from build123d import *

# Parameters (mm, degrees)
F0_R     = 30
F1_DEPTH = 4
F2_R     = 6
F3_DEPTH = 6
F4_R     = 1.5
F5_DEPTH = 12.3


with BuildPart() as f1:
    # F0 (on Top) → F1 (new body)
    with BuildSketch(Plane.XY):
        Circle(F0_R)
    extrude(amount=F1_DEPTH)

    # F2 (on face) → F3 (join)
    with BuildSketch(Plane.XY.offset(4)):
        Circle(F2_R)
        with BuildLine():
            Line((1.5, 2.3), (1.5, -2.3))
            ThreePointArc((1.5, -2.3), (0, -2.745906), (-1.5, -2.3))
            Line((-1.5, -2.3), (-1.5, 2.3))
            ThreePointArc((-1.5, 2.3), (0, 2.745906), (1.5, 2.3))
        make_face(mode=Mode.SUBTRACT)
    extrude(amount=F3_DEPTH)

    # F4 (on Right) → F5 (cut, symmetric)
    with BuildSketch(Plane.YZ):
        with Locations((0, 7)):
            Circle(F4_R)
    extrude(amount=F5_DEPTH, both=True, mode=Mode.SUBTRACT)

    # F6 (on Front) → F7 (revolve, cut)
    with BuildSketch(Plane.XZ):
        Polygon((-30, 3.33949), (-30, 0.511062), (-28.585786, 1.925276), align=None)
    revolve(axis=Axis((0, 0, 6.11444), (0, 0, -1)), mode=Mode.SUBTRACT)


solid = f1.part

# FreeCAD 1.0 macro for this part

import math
import FreeCAD as App
import Part
import Sketcher

V = App.Vector
Q = App.Units.Quantity

doc = App.newDocument("Part")
body = doc.addObject("PartDesign::Body", "Body")

# Sketch on XY plane
sketch1 = doc.addObject("Sketcher::SketchObject", "Sketch")
body.addObject(sketch1)
sketch1.AttachmentSupport = (doc.XY_Plane, [""])
sketch1.MapMode = "FlatFace"
sketch1.addGeometry(Part.Circle(V(0, 0, 0), V(0, 0, 1), 30), False)
sketch1.addConstraint(Sketcher.Constraint("Coincident", 0, 3, -1, 1))
sketch1.addConstraint(Sketcher.Constraint("Diameter", 0, Q("60 mm")))
pad1 = doc.addObject("PartDesign::Pad", "Pad")
body.addObject(pad1)
pad1.Profile = sketch1
pad1.Length = 4

# Sketch on XY plane
sketch2 = doc.addObject("Sketcher::SketchObject", "Sketch001")
body.addObject(sketch2)
sketch2.AttachmentSupport = (doc.XY_Plane, [""])
sketch2.MapMode = "FlatFace"
sketch2.AttachmentOffset = App.Placement(V(0, 0, 4), App.Rotation())
sketch2.addGeometry(Part.Circle(V(0, 0, 0), V(0, 0, 1), 6), False)
sketch2.addGeometry(Part.ArcOfCircle(Part.Circle(V(0, 0, 0), V(0, 0, 1), 2.7), math.radians(57), math.radians(123)), False)
sketch2.addGeometry(Part.LineSegment(V(1.5, 2.3, 0), V(1.5, -2.3, 0)), False)
sketch2.addGeometry(Part.ArcOfCircle(Part.Circle(V(0, 0, 0), V(0, 0, 1), 2.7), math.radians(-123), math.radians(-57)), False)
sketch2.addGeometry(Part.LineSegment(V(-1.5, -2.3, 0), V(-1.5, 2.3, 0)), False)
sketch2.addConstraint(Sketcher.Constraint("Coincident", 1, 1, 2, 1))
sketch2.addConstraint(Sketcher.Constraint("Coincident", 2, 2, 3, 2))
sketch2.addConstraint(Sketcher.Constraint("Coincident", 3, 1, 4, 1))
sketch2.addConstraint(Sketcher.Constraint("Coincident", 4, 2, 1, 2))
sketch2.addConstraint(Sketcher.Constraint("Vertical", 2))
sketch2.addConstraint(Sketcher.Constraint("Vertical", 4))
sketch2.addConstraint(Sketcher.Constraint("Coincident", 0, 3, -1, 1))
sketch2.addConstraint(Sketcher.Constraint("Coincident", 1, 3, -1, 1))
sketch2.addConstraint(Sketcher.Constraint("Coincident", 3, 3, -1, 1))
sketch2.addConstraint(Sketcher.Constraint("Equal", 1, 3))
sketch2.addConstraint(Sketcher.Constraint("Horizontal", 2, 2, 3, 1))
sketch2.addConstraint(Sketcher.Constraint("Diameter", 0, Q("12 mm")))
sketch2.addConstraint(Sketcher.Constraint("DistanceY", 2, 2, 2, 1, Q("4.6 mm")))
sketch2.addConstraint(Sketcher.Constraint("DistanceX", 3, 1, 2, 2, Q("3 mm")))
pad2 = doc.addObject("PartDesign::Pad", "Pad001")
body.addObject(pad2)
pad2.Profile = sketch2
pad2.Length = 6

# Sketch on YZ plane
sketch3 = doc.addObject("Sketcher::SketchObject", "Sketch002")
body.addObject(sketch3)
sketch3.AttachmentSupport = (doc.YZ_Plane, [""])
sketch3.MapMode = "FlatFace"
sketch3.addGeometry(Part.Circle(V(0, 7, 0), V(0, 0, 1), 1.5), False)
sketch3.addConstraint(Sketcher.Constraint("PointOnObject", 0, 3, -2))
sketch3.addConstraint(Sketcher.Constraint("Diameter", 0, Q("3 mm")))
sketch3.addConstraint(Sketcher.Constraint("DistanceY", -1, 1, 0, 3, Q("7 mm")))
pocket1 = doc.addObject("PartDesign::Pocket", "Pocket")
body.addObject(pocket1)
pocket1.Profile = sketch3
pocket1.Length = 24.6
pocket1.Midplane = True

# Sketch on XZ plane
sketch4 = doc.addObject("Sketcher::SketchObject", "Sketch003")
body.addObject(sketch4)
sketch4.AttachmentSupport = (doc.XZ_Plane, [""])
sketch4.MapMode = "FlatFace"
sketch4.addGeometry(Part.LineSegment(V(-30, 3.3, 0), V(-30, 0.5, 0)), False)
sketch4.addGeometry(Part.LineSegment(V(-30, 0.5, 0), V(-28.6, 1.9, 0)), False)
sketch4.addGeometry(Part.LineSegment(V(-28.6, 1.9, 0), V(-30, 3.3, 0)), False)
sketch4.addConstraint(Sketcher.Constraint("Coincident", 0, 2, 1, 1))
sketch4.addConstraint(Sketcher.Constraint("Coincident", 1, 2, 2, 1))
sketch4.addConstraint(Sketcher.Constraint("Coincident", 2, 2, 0, 1))
sketch4.addConstraint(Sketcher.Constraint("Vertical", 0))
sketch4.addConstraint(Sketcher.Constraint("Perpendicular", 1, 2))
sketch4.addConstraint(Sketcher.Constraint("Equal", 1, 2))
sketch4.addConstraint(Sketcher.Constraint("Distance", 1, Q("2.000001 mm")))
sketch4.addConstraint(Sketcher.Constraint("DistanceX", 0, 2, -1, 1, Q("30 mm")))
sketch4.addConstraint(Sketcher.Constraint("DistanceY", -1, 1, 2, 2, Q("3.33949 mm")))
groove = doc.addObject("PartDesign::Groove", "Groove")
body.addObject(groove)
groove.Profile = sketch4
groove.ReferenceAxis = (sketch4, ["V_Axis"])
groove.Angle = 360

doc.recompute()
